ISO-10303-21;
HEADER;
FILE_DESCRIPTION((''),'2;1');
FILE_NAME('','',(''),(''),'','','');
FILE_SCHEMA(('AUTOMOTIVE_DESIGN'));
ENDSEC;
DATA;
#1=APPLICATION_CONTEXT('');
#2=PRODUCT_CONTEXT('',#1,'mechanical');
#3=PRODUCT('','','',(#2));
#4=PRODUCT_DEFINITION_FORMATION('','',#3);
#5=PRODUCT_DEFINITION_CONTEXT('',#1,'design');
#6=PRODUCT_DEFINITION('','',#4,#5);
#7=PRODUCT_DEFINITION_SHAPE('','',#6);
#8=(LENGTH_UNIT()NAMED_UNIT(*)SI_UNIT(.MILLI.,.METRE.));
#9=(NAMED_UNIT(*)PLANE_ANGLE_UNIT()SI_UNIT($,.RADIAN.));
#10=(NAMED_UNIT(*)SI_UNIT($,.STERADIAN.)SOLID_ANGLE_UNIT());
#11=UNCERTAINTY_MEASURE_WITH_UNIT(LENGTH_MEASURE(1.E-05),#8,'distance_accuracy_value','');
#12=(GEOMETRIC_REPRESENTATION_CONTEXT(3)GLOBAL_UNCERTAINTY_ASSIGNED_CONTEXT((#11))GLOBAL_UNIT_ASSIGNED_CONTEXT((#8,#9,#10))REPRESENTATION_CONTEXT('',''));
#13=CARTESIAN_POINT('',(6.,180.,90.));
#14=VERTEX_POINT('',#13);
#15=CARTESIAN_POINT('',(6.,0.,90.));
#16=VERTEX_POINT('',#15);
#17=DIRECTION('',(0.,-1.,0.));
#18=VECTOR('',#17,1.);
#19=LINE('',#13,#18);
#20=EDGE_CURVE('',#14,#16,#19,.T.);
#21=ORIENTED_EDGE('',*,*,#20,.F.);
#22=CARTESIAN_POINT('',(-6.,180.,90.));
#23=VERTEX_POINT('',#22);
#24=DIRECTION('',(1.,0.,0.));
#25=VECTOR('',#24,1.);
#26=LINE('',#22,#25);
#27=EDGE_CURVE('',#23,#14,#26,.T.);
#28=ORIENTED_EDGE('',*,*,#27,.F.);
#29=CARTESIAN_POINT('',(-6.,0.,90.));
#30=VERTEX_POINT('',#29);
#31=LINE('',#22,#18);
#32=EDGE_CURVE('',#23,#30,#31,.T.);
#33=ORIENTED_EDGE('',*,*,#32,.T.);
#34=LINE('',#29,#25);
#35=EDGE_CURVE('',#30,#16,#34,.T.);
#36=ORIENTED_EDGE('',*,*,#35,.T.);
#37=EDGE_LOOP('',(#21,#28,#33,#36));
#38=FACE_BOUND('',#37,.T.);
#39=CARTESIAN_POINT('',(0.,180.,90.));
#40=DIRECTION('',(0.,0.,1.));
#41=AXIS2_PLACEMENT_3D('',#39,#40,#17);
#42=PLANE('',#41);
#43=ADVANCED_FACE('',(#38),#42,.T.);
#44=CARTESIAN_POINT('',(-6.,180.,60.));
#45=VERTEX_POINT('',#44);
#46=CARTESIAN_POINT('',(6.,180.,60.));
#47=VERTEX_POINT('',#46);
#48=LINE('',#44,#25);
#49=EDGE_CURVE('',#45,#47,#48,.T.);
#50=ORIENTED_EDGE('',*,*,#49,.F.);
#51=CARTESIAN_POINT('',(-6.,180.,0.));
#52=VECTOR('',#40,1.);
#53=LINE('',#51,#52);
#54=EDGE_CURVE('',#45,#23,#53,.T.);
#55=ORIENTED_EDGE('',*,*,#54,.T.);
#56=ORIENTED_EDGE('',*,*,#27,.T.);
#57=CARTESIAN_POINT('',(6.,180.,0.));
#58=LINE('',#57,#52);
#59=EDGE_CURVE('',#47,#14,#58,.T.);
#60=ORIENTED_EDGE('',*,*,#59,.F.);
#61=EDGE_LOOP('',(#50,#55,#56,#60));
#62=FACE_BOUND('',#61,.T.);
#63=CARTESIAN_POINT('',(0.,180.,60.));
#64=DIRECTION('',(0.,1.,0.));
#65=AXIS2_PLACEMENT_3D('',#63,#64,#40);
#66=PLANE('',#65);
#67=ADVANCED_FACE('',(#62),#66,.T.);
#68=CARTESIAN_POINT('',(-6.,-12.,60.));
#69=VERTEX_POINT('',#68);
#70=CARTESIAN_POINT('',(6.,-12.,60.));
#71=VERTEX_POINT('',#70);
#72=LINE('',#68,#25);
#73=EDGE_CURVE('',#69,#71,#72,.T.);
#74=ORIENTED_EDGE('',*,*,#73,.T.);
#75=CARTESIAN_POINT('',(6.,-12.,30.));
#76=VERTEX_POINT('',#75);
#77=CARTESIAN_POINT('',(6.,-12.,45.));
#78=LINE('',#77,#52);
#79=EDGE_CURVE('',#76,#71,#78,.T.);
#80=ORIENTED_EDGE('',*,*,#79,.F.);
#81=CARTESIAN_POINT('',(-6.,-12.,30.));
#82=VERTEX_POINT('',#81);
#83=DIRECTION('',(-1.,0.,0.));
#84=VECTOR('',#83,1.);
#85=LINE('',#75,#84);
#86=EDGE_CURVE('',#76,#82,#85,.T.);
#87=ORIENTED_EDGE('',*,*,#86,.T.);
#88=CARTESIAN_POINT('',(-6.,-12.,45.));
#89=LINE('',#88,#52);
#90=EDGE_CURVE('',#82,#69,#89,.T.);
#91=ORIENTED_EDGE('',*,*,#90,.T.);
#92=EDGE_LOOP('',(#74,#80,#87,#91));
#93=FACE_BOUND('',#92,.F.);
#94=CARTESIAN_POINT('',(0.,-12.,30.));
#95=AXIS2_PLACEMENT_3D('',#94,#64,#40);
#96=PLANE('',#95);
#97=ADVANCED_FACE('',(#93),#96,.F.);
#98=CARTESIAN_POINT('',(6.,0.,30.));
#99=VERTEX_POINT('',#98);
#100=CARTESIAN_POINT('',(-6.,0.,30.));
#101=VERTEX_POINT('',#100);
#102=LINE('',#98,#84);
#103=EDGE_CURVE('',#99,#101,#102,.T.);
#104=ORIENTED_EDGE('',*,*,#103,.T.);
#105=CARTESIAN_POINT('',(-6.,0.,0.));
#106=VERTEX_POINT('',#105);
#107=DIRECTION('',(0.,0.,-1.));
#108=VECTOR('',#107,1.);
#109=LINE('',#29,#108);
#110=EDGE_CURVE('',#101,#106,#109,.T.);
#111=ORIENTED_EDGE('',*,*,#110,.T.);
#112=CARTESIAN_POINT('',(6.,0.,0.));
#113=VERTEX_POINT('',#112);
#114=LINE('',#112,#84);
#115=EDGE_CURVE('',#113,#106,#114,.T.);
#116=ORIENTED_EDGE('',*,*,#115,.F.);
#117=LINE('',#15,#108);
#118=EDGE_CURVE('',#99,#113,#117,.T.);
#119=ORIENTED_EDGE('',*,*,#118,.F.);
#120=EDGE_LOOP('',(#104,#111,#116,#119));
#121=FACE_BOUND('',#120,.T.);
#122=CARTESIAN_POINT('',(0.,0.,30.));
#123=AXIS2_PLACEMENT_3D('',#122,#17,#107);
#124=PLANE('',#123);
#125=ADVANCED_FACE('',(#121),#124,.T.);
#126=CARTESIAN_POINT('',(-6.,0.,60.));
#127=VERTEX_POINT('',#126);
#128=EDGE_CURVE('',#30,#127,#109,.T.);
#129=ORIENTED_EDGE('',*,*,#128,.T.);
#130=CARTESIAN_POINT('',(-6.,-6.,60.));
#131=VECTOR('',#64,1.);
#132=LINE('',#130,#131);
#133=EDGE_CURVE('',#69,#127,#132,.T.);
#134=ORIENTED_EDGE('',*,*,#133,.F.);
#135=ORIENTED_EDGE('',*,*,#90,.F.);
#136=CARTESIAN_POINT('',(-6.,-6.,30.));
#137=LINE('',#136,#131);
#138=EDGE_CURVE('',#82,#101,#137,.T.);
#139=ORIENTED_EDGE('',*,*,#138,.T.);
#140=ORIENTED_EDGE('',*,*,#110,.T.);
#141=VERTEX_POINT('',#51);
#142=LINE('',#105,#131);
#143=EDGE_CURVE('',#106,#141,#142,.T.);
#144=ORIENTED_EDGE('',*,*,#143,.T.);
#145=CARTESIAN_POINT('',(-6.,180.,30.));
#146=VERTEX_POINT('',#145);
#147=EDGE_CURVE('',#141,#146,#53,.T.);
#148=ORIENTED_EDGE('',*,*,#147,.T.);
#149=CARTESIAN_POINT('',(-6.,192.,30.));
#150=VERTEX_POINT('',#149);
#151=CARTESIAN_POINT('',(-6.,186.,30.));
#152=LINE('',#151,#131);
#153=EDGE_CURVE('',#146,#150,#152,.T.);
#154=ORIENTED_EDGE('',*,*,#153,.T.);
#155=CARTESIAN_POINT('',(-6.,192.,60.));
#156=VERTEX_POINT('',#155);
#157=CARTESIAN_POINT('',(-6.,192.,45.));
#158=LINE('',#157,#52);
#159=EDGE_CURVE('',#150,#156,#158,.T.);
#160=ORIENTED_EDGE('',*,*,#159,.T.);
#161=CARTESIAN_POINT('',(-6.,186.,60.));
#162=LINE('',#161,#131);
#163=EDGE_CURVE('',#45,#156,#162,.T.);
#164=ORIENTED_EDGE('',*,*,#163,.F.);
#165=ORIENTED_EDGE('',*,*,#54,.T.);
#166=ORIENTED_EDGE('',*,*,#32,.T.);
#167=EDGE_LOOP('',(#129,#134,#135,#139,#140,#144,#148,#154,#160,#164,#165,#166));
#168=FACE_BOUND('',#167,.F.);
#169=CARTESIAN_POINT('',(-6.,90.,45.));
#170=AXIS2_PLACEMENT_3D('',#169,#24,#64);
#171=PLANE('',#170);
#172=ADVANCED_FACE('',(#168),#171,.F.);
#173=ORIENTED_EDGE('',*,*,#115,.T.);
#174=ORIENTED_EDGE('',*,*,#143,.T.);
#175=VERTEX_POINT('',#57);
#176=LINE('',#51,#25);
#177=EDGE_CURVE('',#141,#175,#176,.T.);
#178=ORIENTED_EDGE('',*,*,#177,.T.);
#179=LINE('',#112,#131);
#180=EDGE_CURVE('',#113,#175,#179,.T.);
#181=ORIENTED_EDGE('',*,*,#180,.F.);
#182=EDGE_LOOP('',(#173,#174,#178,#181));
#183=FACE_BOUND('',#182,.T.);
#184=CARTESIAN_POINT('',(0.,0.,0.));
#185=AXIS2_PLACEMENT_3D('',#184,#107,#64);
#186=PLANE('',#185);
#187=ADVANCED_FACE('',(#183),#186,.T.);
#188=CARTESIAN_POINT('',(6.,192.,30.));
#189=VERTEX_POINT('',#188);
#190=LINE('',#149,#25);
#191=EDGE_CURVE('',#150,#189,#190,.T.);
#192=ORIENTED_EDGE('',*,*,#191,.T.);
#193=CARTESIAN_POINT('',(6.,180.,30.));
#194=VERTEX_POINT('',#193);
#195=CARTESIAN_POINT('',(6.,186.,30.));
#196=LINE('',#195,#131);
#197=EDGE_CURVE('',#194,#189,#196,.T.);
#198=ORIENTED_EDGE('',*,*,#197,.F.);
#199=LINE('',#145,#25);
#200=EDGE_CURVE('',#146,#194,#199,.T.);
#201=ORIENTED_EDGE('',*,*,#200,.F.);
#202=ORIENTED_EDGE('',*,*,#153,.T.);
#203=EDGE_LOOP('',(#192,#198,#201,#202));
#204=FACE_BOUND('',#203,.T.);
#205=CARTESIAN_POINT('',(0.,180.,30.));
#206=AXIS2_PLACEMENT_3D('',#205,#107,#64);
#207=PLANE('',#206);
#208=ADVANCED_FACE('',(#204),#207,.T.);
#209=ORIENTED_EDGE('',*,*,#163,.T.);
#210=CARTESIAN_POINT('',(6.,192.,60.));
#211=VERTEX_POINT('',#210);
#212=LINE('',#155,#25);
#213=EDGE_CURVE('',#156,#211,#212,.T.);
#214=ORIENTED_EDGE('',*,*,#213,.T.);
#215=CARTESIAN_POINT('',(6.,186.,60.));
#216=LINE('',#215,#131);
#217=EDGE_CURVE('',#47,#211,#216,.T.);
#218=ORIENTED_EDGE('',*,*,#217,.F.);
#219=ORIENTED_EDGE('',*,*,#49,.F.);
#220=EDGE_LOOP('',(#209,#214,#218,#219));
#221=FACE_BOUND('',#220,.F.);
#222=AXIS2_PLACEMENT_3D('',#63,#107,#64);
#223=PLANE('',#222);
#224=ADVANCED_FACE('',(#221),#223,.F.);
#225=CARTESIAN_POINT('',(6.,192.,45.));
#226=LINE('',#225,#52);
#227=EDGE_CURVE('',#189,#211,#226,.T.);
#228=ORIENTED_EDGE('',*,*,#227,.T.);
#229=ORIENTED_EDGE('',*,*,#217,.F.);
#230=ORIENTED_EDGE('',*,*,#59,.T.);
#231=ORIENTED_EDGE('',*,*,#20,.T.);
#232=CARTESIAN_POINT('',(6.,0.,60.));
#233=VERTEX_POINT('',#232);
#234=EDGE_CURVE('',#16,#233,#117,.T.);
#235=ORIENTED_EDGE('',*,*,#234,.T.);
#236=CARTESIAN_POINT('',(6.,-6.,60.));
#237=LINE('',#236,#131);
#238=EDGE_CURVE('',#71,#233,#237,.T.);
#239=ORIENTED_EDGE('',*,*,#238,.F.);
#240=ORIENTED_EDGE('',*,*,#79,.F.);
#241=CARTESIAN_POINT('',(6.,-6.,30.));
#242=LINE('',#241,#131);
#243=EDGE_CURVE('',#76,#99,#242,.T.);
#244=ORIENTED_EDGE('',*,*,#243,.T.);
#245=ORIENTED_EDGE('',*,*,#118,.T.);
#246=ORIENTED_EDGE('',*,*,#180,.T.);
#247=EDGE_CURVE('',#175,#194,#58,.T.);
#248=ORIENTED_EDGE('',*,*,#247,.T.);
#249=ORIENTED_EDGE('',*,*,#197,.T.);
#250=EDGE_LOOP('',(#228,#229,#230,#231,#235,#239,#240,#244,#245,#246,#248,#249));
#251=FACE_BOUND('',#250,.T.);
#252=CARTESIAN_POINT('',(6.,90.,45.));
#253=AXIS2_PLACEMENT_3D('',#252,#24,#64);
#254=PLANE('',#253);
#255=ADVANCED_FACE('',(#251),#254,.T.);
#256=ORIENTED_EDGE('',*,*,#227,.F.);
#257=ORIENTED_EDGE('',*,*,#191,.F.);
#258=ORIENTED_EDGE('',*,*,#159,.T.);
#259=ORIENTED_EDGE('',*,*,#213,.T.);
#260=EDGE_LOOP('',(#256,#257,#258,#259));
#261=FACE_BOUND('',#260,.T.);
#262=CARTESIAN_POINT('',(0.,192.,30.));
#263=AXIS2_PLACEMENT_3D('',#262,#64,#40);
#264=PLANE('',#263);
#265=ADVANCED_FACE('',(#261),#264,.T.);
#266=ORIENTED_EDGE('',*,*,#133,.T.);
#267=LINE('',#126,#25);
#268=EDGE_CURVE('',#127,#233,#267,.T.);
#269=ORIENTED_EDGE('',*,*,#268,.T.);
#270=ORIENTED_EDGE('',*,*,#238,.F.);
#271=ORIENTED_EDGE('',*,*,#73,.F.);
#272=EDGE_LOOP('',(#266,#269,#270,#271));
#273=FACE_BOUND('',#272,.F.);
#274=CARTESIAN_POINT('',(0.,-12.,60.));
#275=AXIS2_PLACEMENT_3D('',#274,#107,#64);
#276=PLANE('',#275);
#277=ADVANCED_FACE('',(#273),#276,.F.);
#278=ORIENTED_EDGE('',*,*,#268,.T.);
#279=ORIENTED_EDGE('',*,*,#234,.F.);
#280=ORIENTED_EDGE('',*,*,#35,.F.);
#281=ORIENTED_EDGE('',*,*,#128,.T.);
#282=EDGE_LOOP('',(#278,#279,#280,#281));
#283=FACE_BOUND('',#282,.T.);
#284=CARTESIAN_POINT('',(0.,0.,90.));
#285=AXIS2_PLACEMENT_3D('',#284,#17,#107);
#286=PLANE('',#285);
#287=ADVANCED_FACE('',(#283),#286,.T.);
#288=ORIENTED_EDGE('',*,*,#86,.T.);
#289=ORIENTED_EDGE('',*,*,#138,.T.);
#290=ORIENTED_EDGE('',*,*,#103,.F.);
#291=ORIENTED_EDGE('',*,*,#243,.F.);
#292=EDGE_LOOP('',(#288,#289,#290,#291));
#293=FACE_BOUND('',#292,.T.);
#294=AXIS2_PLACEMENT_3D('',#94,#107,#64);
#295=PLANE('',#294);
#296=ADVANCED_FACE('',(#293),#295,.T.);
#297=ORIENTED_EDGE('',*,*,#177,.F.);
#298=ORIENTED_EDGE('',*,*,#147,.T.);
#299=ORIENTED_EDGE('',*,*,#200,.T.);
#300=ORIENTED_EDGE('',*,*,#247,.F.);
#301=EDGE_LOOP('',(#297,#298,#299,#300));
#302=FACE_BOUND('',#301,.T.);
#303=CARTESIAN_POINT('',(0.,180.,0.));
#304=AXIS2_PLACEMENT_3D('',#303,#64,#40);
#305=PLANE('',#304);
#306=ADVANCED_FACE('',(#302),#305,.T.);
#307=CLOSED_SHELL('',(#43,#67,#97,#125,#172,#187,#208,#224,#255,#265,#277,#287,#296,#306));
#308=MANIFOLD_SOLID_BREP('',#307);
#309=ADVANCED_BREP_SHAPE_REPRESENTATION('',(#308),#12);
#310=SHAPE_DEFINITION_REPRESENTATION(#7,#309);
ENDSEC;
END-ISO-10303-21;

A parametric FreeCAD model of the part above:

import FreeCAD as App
import Part
import Sketcher

V = App.Vector

doc = App.newDocument("Part")
body = doc.addObject("PartDesign::Body", "Body")

sketch1 = doc.addObject("Sketcher::SketchObject", "Sketch")
body.addObject(sketch1)
sketch1.AttachmentSupport = (doc.YZ_Plane, [""])
sketch1.MapMode = "FlatFace"
sketch1.addGeometry([
    Part.LineSegment(V(0, 0, 0), V(180, 0, 0)),
    Part.LineSegment(V(180, 0, 0), V(180, 30, 0)),
    Part.LineSegment(V(180, 30, 0), V(192, 30, 0)),
    Part.LineSegment(V(192, 30, 0), V(192, 60, 0)),
    Part.LineSegment(V(192, 60, 0), V(180, 60, 0)),
    Part.LineSegment(V(180, 60, 0), V(180, 90, 0)),
    Part.LineSegment(V(180, 90, 0), V(0, 90, 0)),
    Part.LineSegment(V(0, 90, 0), V(0, 60, 0)),
    Part.LineSegment(V(0, 60, 0), V(-12, 60, 0)),
    Part.LineSegment(V(-12, 60, 0), V(-12, 30, 0)),
    Part.LineSegment(V(-12, 30, 0), V(0, 30, 0)),
    Part.LineSegment(V(0, 30, 0), V(0, 0, 0)),
], False)
sketch1.addConstraint([
    Sketcher.Constraint("Coincident", 0, 2, 1, 1),
    Sketcher.Constraint("Coincident", 1, 2, 2, 1),
    Sketcher.Constraint("Coincident", 2, 2, 3, 1),
    Sketcher.Constraint("Coincident", 3, 2, 4, 1),
    Sketcher.Constraint("Coincident", 4, 2, 5, 1),
    Sketcher.Constraint("Coincident", 5, 2, 6, 1),
    Sketcher.Constraint("Coincident", 6, 2, 7, 1),
    Sketcher.Constraint("Coincident", 7, 2, 8, 1),
    Sketcher.Constraint("Coincident", 8, 2, 9, 1),
    Sketcher.Constraint("Coincident", 9, 2, 10, 1),
    Sketcher.Constraint("Coincident", 10, 2, 11, 1),
    Sketcher.Constraint("Coincident", 11, 2, 0, 1),
    Sketcher.Constraint("Horizontal", 0),
    Sketcher.Constraint("Vertical", 1),
    Sketcher.Constraint("Horizontal", 2),
    Sketcher.Constraint("Vertical", 3),
    Sketcher.Constraint("Horizontal", 4),
    Sketcher.Constraint("Vertical", 5),
    Sketcher.Constraint("Horizontal", 6),
    Sketcher.Constraint("Vertical", 7),
    Sketcher.Constraint("Horizontal", 8),
    Sketcher.Constraint("Vertical", 9),
    Sketcher.Constraint("Horizontal", 10),
    Sketcher.Constraint("Vertical", 11),
    Sketcher.Constraint("Coincident", 11, 2, -1, 1),
    Sketcher.Constraint("PointOnObject", 6, 2, -2),
    Sketcher.Constraint("Horizontal", 4, 2, 7, 2),
    Sketcher.Constraint("Horizontal", 2, 2, 9, 2),
    Sketcher.Constraint("Vertical", 1, 2, 4, 2),
    Sketcher.Constraint("Equal", 4, 8),
    Sketcher.Constraint("Equal", 1, 3),
    Sketcher.Constraint("Equal", 3, 5),
    Sketcher.Constraint("DistanceX", 0, 1, 0, 2, 180.0),
    Sketcher.Constraint("DistanceX", 2, 1, 2, 2, 12.0),
    Sketcher.Constraint("DistanceY", 1, 1, 1, 2, 30.0),
])
pad1 = doc.addObject("PartDesign::Pad", "Pad")
body.addObject(pad1)
pad1.Profile = sketch1
pad1.Length = 12
pad1.Midplane = True

sketch2 = doc.addObject("Sketcher::SketchObject", "Sketch001")
body.addObject(sketch2)
sketch2.AttachmentSupport = (doc.YZ_Plane, [""])
sketch2.MapMode = "FlatFace"
sketch2.addGeometry([
    Part.LineSegment(V(0, 0, 0), V(180, 0, 0)),
    Part.LineSegment(V(180, 0, 0), V(180, 30, 0)),
    Part.LineSegment(V(180, 30, 0), V(192, 30, 0)),
    Part.LineSegment(V(192, 30, 0), V(192, 60, 0)),
    Part.LineSegment(V(192, 60, 0), V(180, 60, 0)),
    Part.LineSegment(V(180, 60, 0), V(180, 90, 0)),
    Part.LineSegment(V(180, 90, 0), V(0, 90, 0)),
    Part.LineSegment(V(0, 90, 0), V(0, 60, 0)),
    Part.LineSegment(V(0, 60, 0), V(-12, 60, 0)),
    Part.LineSegment(V(-12, 60, 0), V(-12, 30, 0)),
    Part.LineSegment(V(-12, 30, 0), V(0, 30, 0)),
    Part.LineSegment(V(0, 30, 0), V(0, 0, 0)),
], False)
sketch2.addConstraint([
    Sketcher.Constraint("Coincident", 0, 2, 1, 1),
    Sketcher.Constraint("Coincident", 1, 2, 2, 1),
    Sketcher.Constraint("Coincident", 2, 2, 3, 1),
    Sketcher.Constraint("Coincident", 3, 2, 4, 1),
    Sketcher.Constraint("Coincident", 4, 2, 5, 1),
    Sketcher.Constraint("Coincident", 5, 2, 6, 1),
    Sketcher.Constraint("Coincident", 6, 2, 7, 1),
    Sketcher.Constraint("Coincident", 7, 2, 8, 1),
    Sketcher.Constraint("Coincident", 8, 2, 9, 1),
    Sketcher.Constraint("Coincident", 9, 2, 10, 1),
    Sketcher.Constraint("Coincident", 10, 2, 11, 1),
    Sketcher.Constraint("Coincident", 11, 2, 0, 1),
    Sketcher.Constraint("Horizontal", 0),
    Sketcher.Constraint("Vertical", 1),
    Sketcher.Constraint("Horizontal", 2),
    Sketcher.Constraint("Vertical", 3),
    Sketcher.Constraint("Horizontal", 4),
    Sketcher.Constraint("Vertical", 5),
    Sketcher.Constraint("Horizontal", 6),
    Sketcher.Constraint("Vertical", 7),
    Sketcher.Constraint("Horizontal", 8),
    Sketcher.Constraint("Vertical", 9),
    Sketcher.Constraint("Horizontal", 10),
    Sketcher.Constraint("Vertical", 11),
    Sketcher.Constraint("Coincident", 11, 2, -1, 1),
    Sketcher.Constraint("PointOnObject", 6, 2, -2),
    Sketcher.Constraint("Horizontal", 4, 2, 7, 2),
    Sketcher.Constraint("Horizontal", 2, 2, 9, 2),
    Sketcher.Constraint("Vertical", 1, 2, 4, 2),
    Sketcher.Constraint("Equal", 4, 8),
    Sketcher.Constraint("Equal", 1, 3),
    Sketcher.Constraint("Equal", 3, 5),
    Sketcher.Constraint("DistanceX", 0, 1, 0, 2, 180.0),
    Sketcher.Constraint("DistanceX", 2, 1, 2, 2, 12.0),
    Sketcher.Constraint("DistanceY", 1, 1, 1, 2, 30.0),
])
pad2 = doc.addObject("PartDesign::Pad", "Pad001")
body.addObject(pad2)
pad2.Profile = sketch2
pad2.Length = 12
pad2.Midplane = True

doc.recompute()
